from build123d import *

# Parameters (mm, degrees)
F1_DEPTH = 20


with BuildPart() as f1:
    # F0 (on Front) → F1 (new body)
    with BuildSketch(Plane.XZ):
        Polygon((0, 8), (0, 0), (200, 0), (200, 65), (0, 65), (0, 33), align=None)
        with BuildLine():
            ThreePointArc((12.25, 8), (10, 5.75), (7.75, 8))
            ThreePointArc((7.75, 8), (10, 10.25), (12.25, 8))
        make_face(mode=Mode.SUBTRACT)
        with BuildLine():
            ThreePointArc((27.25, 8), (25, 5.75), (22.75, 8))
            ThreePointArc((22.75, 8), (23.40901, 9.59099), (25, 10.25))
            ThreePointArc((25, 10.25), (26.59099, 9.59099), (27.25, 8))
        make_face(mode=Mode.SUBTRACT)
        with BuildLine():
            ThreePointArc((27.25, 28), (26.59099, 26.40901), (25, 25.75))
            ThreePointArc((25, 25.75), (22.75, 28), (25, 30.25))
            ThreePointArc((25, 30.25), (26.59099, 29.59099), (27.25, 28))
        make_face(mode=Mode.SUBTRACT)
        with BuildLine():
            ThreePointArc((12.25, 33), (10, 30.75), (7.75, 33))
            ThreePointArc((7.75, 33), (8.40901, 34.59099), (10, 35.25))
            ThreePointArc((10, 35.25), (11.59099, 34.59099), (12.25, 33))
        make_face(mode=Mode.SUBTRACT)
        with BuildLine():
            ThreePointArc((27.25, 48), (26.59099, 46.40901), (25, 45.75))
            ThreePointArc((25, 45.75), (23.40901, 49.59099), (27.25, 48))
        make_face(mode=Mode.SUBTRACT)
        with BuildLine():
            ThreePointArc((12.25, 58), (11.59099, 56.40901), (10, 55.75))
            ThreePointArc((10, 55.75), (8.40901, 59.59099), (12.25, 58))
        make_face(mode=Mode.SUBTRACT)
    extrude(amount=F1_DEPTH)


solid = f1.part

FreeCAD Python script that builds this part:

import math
import FreeCAD as App
import Part
import Sketcher
from FreeCAD import Vector


def add_polygon(sketch, points):
    """Adds a closed chain of lines whose ends are joined by coincident constraints."""
    first, n = sketch.GeometryCount, len(points)
    for a, b in zip(points, points[1:] + points[:1]):
        sketch.addGeometry(Part.LineSegment(App.Vector(*a, 0), App.Vector(*b, 0)), False)
    for i in range(n):
        sketch.addConstraint(Sketcher.Constraint("Coincident", first + i, 2, first + (i + 1) % n, 1))

doc = App.newDocument("Part")
params = doc.addObject("Spreadsheet::Sheet", "Params")
for row, (alias, value) in enumerate([
    ("sketch1_diameter", "4.5 mm"),
    ("sketch1_width", "200 mm"),
    ("sketch1_height", "65 mm"),
    ("pad1_length", "20 mm"),
], start=1):
    params.set(f"A{row}", alias)
    params.set(f"B{row}", "=" + value)
    params.setAlias(f"B{row}", alias)

body = doc.addObject("PartDesign::Body", "Body")

# Sketch on XZ plane
sketch1 = body.newObject("Sketcher::SketchObject", "Sketch")
sketch1.AttachmentSupport = (doc.getObject("XZ_Plane"), [""])
sketch1.MapMode = "FlatFace"
add_polygon(sketch1, [(0, 0), (200, 0), (200, 65), (0, 65)])  # lines 0-3
sketch1.addGeometry(Part.Circle(Vector(10, 8, 0), Vector(0, 0, 1), 2.25), False)  # 4
sketch1.addGeometry(Part.ArcOfCircle(Part.Circle(Vector(24.999999, 7.999999, 0), Vector(0, 0, 1), 2.250001), math.radians(0.000022), math.radians(89.999978)), False)  # 5
sketch1.addGeometry(Part.ArcOfCircle(Part.Circle(Vector(25, 8, 0), Vector(0, 0, 1), 2.25), math.radians(180), math.radians(360)), False)  # 6
sketch1.addGeometry(Part.ArcOfCircle(Part.Circle(Vector(25.000001, 7.999999, 0), Vector(0, 0, 1), 2.250001), math.radians(90.000022), math.radians(179.999978)), False)  # 7
sketch1.addGeometry(Part.ArcOfCircle(Part.Circle(Vector(24.999999, 27.999999, 0), Vector(0, 0, 1), 2.250001), math.radians(0.000022), math.radians(89.999978)), False)  # 8
sketch1.addGeometry(Part.ArcOfCircle(Part.Circle(Vector(24.999999, 28.000001, 0), Vector(0, 0, 1), 2.250001), math.radians(-89.999978), math.radians(-0.000022)), False)  # 9
sketch1.addGeometry(Part.ArcOfCircle(Part.Circle(Vector(25, 28, 0), Vector(0, 0, 1), 2.25), math.radians(90), math.radians(270)), False)  # 10
sketch1.addGeometry(Part.ArcOfCircle(Part.Circle(Vector(9.999999, 32.999999, 0), Vector(0, 0, 1), 2.250001), math.radians(0.000022), math.radians(89.999978)), False)  # 11
sketch1.addGeometry(Part.ArcOfCircle(Part.Circle(Vector(10, 33, 0), Vector(0, 0, 1), 2.25), math.radians(180), math.radians(360)), False)  # 12
sketch1.addGeometry(Part.ArcOfCircle(Part.Circle(Vector(10.000001, 32.999999, 0), Vector(0, 0, 1), 2.250001), math.radians(90.000022), math.radians(179.999978)), False)  # 13
sketch1.addGeometry(Part.ArcOfCircle(Part.Circle(Vector(10, 58, 0), Vector(0, 0, 1), 2.25), math.radians(0.000004), math.radians(269.999996)), False)  # 14
sketch1.addGeometry(Part.ArcOfCircle(Part.Circle(Vector(9.999999, 58.000001, 0), Vector(0, 0, 1), 2.250001), math.radians(-89.999978), math.radians(-0.000022)), False)  # 15
sketch1.addGeometry(Part.ArcOfCircle(Part.Circle(Vector(25, 48, 0), Vector(0, 0, 1), 2.25), math.radians(0.000004), math.radians(269.999996)), False)  # 16
sketch1.addGeometry(Part.ArcOfCircle(Part.Circle(Vector(24.999999, 48.000001, 0), Vector(0, 0, 1), 2.250001), math.radians(-89.999978), math.radians(-0.000022)), False)  # 17
sketch1.addConstraint([
    Sketcher.Constraint("Tangent", 5, 1, 6, 2),
    Sketcher.Constraint("Tangent", 6, 1, 7, 2),
    Sketcher.Constraint("Tangent", 7, 1, 5, 2),
    Sketcher.Constraint("Tangent", 8, 1, 9, 2),
    Sketcher.Constraint("Tangent", 9, 1, 10, 2),
    Sketcher.Constraint("Tangent", 10, 1, 8, 2),
    Sketcher.Constraint("Tangent", 11, 1, 12, 2),
    Sketcher.Constraint("Tangent", 12, 1, 13, 2),
    Sketcher.Constraint("Tangent", 13, 1, 11, 2),
    Sketcher.Constraint("Tangent", 14, 1, 15, 2),
    Sketcher.Constraint("Coincident", 15, 1, 14, 2),
    Sketcher.Constraint("Tangent", 16, 1, 17, 2),
    Sketcher.Constraint("Coincident", 17, 1, 16, 2),
    Sketcher.Constraint("Horizontal", 0),
    Sketcher.Constraint("Vertical", 1),
    Sketcher.Constraint("Horizontal", 2),
    Sketcher.Constraint("Vertical", 3),
    Sketcher.Constraint("Coincident", 3, 2, -1, 1),
    Sketcher.Constraint("Equal", 4, 5),
    Sketcher.Constraint("Equal", 7, 8),
    Sketcher.Constraint("Equal", 10, 11),
    Sketcher.Constraint("Equal", 13, 14),
    Sketcher.Constraint("Equal", 15, 16),
    Sketcher.Constraint("Horizontal", 4, 3, 5, 3),
    Sketcher.Constraint("Horizontal", 7, 3, 5, 1),
    Sketcher.Constraint("Horizontal", 5, 1, 6, 1),
    Sketcher.Constraint("Horizontal", 10, 3, 8, 1),
    Sketcher.Constraint("Horizontal", 13, 3, 11, 1),
    Sketcher.Constraint("Horizontal", 11, 1, 12, 1),
    Sketcher.Constraint("Horizontal", 15, 3, 14, 1),
    Sketcher.Constraint("Horizontal", 17, 3, 16, 1),
    Sketcher.Constraint("Vertical", 7, 3, 8, 3),
    Sketcher.Constraint("Vertical", 4, 3, 11, 3),
    Sketcher.Constraint("Vertical", 13, 3, 14, 3),
    Sketcher.Constraint("Vertical", 10, 3, 16, 3),
    Sketcher.Constraint("Vertical", 17, 3, 7, 1),
    Sketcher.Constraint("Vertical", 7, 1, 9, 1),
    Sketcher.Constraint("Vertical", 9, 1, 10, 1),
    Sketcher.Constraint("Vertical", 15, 3, 13, 1),
    Sketcher.Constraint("Vertical", 13, 1, 15, 1),
    Sketcher.Constraint("Vertical", 10, 1, 17, 1),
    Sketcher.Constraint("Diameter", 4, 4.5),
    Sketcher.Constraint("DistanceX", 0, 1, 0, 2, 200.0),
    Sketcher.Constraint("DistanceY", 1, 1, 1, 2, 65.0),
    Sketcher.Constraint("DistanceX", -1, 1, 4, 3, 10.0),
    Sketcher.Constraint("DistanceY", -1, 1, 4, 3, 8.0),
    Sketcher.Constraint("DistanceX", -1, 1, 5, 3, 24.999999),
    Sketcher.Constraint("DistanceY", -1, 1, 8, 3, 27.999999),
    Sketcher.Constraint("DistanceY", -1, 1, 11, 3, 32.999999),
    Sketcher.Constraint("DistanceY", -1, 1, 14, 3, 58.0),
    Sketcher.Constraint("DistanceY", -1, 1, 16, 3, 48.0),
])
sketch1.setExpression("Constraints[45]", "Params.sketch1_diameter")
sketch1.setExpression("Constraints[46]", "Params.sketch1_width")
sketch1.setExpression("Constraints[47]", "Params.sketch1_height")
pad1 = body.newObject("PartDesign::Pad", "Pad")
pad1.Profile = sketch1
pad1.setExpression("Length", "Params.pad1_length")

doc.recompute()
